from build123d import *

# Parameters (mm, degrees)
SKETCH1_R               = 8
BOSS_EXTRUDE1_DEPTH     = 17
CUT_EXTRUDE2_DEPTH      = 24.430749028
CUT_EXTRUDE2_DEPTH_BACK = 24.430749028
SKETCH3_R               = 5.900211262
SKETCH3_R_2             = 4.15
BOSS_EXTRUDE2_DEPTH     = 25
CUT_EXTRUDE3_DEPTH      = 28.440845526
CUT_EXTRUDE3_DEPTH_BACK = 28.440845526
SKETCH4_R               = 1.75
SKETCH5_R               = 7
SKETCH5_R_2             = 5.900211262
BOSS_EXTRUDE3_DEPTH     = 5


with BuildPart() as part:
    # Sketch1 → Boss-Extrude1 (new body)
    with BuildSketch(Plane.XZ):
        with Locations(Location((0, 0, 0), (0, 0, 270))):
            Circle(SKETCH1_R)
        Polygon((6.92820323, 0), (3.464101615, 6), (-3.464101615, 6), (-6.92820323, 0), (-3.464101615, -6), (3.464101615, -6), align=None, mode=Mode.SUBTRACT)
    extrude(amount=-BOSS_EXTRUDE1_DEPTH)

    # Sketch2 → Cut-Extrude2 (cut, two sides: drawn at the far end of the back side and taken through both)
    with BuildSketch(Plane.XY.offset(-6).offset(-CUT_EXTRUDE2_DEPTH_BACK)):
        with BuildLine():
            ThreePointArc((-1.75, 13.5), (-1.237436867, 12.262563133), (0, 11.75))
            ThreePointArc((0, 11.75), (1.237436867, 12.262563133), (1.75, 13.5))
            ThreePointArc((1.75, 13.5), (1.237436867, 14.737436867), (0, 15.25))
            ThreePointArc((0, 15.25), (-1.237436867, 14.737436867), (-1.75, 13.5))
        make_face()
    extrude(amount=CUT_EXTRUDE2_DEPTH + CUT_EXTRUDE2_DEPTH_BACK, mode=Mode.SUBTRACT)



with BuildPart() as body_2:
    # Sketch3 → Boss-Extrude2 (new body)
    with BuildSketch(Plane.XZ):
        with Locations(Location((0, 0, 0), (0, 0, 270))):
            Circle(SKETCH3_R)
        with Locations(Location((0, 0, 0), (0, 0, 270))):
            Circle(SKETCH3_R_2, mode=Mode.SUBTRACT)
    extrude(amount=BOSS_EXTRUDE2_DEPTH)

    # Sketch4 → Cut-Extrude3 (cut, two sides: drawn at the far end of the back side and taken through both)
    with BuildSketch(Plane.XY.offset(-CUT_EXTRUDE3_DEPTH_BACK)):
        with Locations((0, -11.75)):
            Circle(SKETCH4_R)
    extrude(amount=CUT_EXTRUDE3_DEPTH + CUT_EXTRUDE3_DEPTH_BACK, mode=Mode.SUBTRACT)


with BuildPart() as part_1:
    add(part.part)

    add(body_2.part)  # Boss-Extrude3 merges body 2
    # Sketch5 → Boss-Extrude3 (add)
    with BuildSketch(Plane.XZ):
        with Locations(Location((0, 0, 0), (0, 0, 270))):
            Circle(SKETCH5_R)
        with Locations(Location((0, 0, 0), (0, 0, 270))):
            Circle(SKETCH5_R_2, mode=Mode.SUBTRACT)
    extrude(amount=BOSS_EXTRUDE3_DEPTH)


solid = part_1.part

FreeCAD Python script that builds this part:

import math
import FreeCAD as App
import Part
import Sketcher

V = App.Vector
Q = App.Units.Quantity

doc = App.newDocument("Part")
params = doc.addObject("Spreadsheet::Sheet", "Params")
for row, (alias, value) in enumerate([
    ("sketch1_diameter", "16 mm"),
    ("pad1_length", "17 mm"),
    ("sketch2_radius", "1.75 mm"),
    ("sketch3_diameter", "8.3 mm"),
    ("pad2_length", "25 mm"),
    ("sketch4_diameter", "3.5 mm"),
    ("sketch5_diameter", "14 mm"),
    ("pad3_length", "5 mm"),
], start=1):
    params.set(f"A{row}", alias)
    params.set(f"B{row}", "=" + value)
    params.setAlias(f"B{row}", alias)

body = doc.addObject("PartDesign::Body", "Body")

# Sketch on XZ plane
sketch1 = body.newObject("Sketcher::SketchObject", "Sketch")
sketch1.AttachmentSupport = (doc.getObject("XZ_Plane"), [""])
sketch1.MapMode = "FlatFace"
sketch1.addGeometry([
    Part.Circle(V(0, 0, 0), V(0, 0, 1), 8),  # 0
    Part.LineSegment(V(3.464102, 6, 0), V(6.928203, 0, 0)),  # 1
    Part.LineSegment(V(6.928203, 0, 0), V(3.464102, -6, 0)),  # 2
    Part.LineSegment(V(3.464102, -6, 0), V(-3.464102, -6, 0)),  # 3
    Part.LineSegment(V(-3.464102, -6, 0), V(-6.928203, 0, 0)),  # 4
    Part.LineSegment(V(-6.928203, 0, 0), V(-3.464102, 6, 0)),  # 5
    Part.LineSegment(V(-3.464102, 6, 0), V(3.464102, 6, 0)),  # 6
], False)
sketch1.addConstraint([
    Sketcher.Constraint("Coincident", 1, 2, 2, 1),
    Sketcher.Constraint("Coincident", 2, 2, 3, 1),
    Sketcher.Constraint("Coincident", 3, 2, 4, 1),
    Sketcher.Constraint("Coincident", 4, 2, 5, 1),
    Sketcher.Constraint("Coincident", 5, 2, 6, 1),
    Sketcher.Constraint("Coincident", 6, 2, 1, 1),
    Sketcher.Constraint("Horizontal", 3),
    Sketcher.Constraint("Horizontal", 6),
    Sketcher.Constraint("Coincident", 0, 3, -1, 1),
    Sketcher.Constraint("Symmetric", 1, 2, 4, 2, -1, 1),
    Sketcher.Constraint("Symmetric", 2, 2, 5, 2, -1, 1),
    Sketcher.Constraint("PointOnObject", 1, 2, -1),
    Sketcher.Constraint("Parallel", 1, 4),
    Sketcher.Constraint("Vertical", 3, 2, 5, 2),
    Sketcher.Constraint("Diameter", 0, Q("16 mm")),
    Sketcher.Constraint("Angle", 1, Q("-60 deg")),
    Sketcher.Constraint("DistanceY", 2, 2, -1, 1, Q("6 mm")),
    Sketcher.Constraint("DistanceX", -1, 1, 2, 2, Q("3.464102 mm")),
])
sketch1.setExpression("Constraints[14]", "Params.sketch1_diameter")
pad1 = body.newObject("PartDesign::Pad", "Pad")
pad1.Profile = sketch1
pad1.setExpression("Length", "Params.pad1_length")
pad1.Reversed = True

# Sketch on XY plane
sketch2 = body.newObject("Sketcher::SketchObject", "Sketch001")
sketch2.AttachmentSupport = (doc.getObject("XY_Plane"), [""])
sketch2.MapMode = "FlatFace"
sketch2.AttachmentOffset = App.Placement(V(0, 0, -6), App.Rotation())
sketch2.addGeometry([
    Part.ArcOfCircle(Part.Circle(V(0, 13.5, 0), V(0, 0, 1), 1.75), math.radians(180), math.radians(270)),
    Part.ArcOfCircle(Part.Circle(V(0, 13.5, 0), V(0, 0, 1), 1.75), math.radians(-90), math.radians(0)),
    Part.ArcOfCircle(Part.Circle(V(0, 13.5, 0), V(0, 0, 1), 1.75), math.radians(0), math.radians(90)),
    Part.ArcOfCircle(Part.Circle(V(0, 13.5, 0), V(0, 0, 1), 1.75), math.radians(90), math.radians(180)),
], False)
sketch2.addConstraint([
    Sketcher.Constraint("Tangent", 0, 2, 1, 1),
    Sketcher.Constraint("Tangent", 1, 2, 2, 1),
    Sketcher.Constraint("Tangent", 2, 2, 3, 1),
    Sketcher.Constraint("Tangent", 3, 2, 0, 1),
    Sketcher.Constraint("Equal", 0, 1),
    Sketcher.Constraint("Symmetric", 1, 2, 3, 2, -2),
    Sketcher.Constraint("PointOnObject", 0, 2, -2),
    Sketcher.Constraint("PointOnObject", 2, 2, -2),
    Sketcher.Constraint("Horizontal", 3, 3, 1, 2),
    Sketcher.Constraint("Radius", 0, Q("1.75 mm")),
    Sketcher.Constraint("DistanceY", -1, 1, 0, 3, Q("13.5 mm")),
])
sketch2.setExpression("Constraints[9]", "Params.sketch2_radius")
pocket1 = body.newObject("PartDesign::Pocket", "Pocket")
pocket1.Profile = sketch2
pocket1.Type = "ThroughAll"
pocket1.Midplane = True
body2 = doc.addObject("PartDesign::Body", "Body001")

# Sketch on XZ plane
sketch3 = body2.newObject("Sketcher::SketchObject", "Sketch002")
sketch3.AttachmentSupport = (doc.getObject("XZ_Plane001"), [""])
sketch3.MapMode = "FlatFace"
sketch3.addGeometry([
    Part.Circle(V(0, 0, 0), V(0, 0, 1), 5.900211),
    Part.Circle(V(0, 0, 0), V(0, 0, 1), 4.15),
], False)
sketch3.addConstraint([
    Sketcher.Constraint("Coincident", 0, 3, -1, 1),
    Sketcher.Constraint("Coincident", 1, 3, -1, 1),
    Sketcher.Constraint("Diameter", 1, Q("8.3 mm")),
    Sketcher.Constraint("Diameter", 0, Q("11.800423 mm")),
])
sketch3.setExpression("Constraints[2]", "Params.sketch3_diameter")
pad2 = body2.newObject("PartDesign::Pad", "Pad001")
pad2.Profile = sketch3
pad2.setExpression("Length", "Params.pad2_length")

# Sketch on XY plane
sketch4 = body2.newObject("Sketcher::SketchObject", "Sketch003")
sketch4.AttachmentSupport = (doc.getObject("XY_Plane001"), [""])
sketch4.MapMode = "FlatFace"
sketch4.addGeometry(Part.Circle(V(0, -11.75, 0), V(0, 0, 1), 1.75), False)
sketch4.addConstraint([
    Sketcher.Constraint("PointOnObject", 0, 3, -2),
    Sketcher.Constraint("Diameter", 0, Q("3.5 mm")),
    Sketcher.Constraint("DistanceY", 0, 3, -1, 1, Q("11.75 mm")),
])
sketch4.setExpression("Constraints[1]", "Params.sketch4_diameter")
pocket2 = body2.newObject("PartDesign::Pocket", "Pocket001")
pocket2.Profile = sketch4
pocket2.Type = "ThroughAll"
pocket2.Midplane = True
body.AllowCompound = True
doc.recompute()

boolean = body.newObject("PartDesign::Boolean", "Boolean")
boolean.Type = "Fuse"
boolean.addObjects([body2])

# Sketch on XZ plane
sketch5 = body.newObject("Sketcher::SketchObject", "Sketch004")
sketch5.AttachmentSupport = (doc.getObject("XZ_Plane"), [""])
sketch5.MapMode = "FlatFace"
sketch5.addGeometry([
    Part.Circle(V(0, 0, 0), V(0, 0, 1), 7),
    Part.Circle(V(0, 0, 0), V(0, 0, 1), 5.900211),
], False)
sketch5.addConstraint([
    Sketcher.Constraint("Coincident", 0, 3, -1, 1),
    Sketcher.Constraint("Coincident", 1, 3, -1, 1),
    Sketcher.Constraint("Diameter", 0, Q("14 mm")),
    Sketcher.Constraint("Diameter", 1, Q("11.800423 mm")),
])
sketch5.setExpression("Constraints[2]", "Params.sketch5_diameter")
pad3 = body.newObject("PartDesign::Pad", "Pad002")
pad3.Profile = sketch5
pad3.setExpression("Length", "Params.pad3_length")

doc.recompute()
